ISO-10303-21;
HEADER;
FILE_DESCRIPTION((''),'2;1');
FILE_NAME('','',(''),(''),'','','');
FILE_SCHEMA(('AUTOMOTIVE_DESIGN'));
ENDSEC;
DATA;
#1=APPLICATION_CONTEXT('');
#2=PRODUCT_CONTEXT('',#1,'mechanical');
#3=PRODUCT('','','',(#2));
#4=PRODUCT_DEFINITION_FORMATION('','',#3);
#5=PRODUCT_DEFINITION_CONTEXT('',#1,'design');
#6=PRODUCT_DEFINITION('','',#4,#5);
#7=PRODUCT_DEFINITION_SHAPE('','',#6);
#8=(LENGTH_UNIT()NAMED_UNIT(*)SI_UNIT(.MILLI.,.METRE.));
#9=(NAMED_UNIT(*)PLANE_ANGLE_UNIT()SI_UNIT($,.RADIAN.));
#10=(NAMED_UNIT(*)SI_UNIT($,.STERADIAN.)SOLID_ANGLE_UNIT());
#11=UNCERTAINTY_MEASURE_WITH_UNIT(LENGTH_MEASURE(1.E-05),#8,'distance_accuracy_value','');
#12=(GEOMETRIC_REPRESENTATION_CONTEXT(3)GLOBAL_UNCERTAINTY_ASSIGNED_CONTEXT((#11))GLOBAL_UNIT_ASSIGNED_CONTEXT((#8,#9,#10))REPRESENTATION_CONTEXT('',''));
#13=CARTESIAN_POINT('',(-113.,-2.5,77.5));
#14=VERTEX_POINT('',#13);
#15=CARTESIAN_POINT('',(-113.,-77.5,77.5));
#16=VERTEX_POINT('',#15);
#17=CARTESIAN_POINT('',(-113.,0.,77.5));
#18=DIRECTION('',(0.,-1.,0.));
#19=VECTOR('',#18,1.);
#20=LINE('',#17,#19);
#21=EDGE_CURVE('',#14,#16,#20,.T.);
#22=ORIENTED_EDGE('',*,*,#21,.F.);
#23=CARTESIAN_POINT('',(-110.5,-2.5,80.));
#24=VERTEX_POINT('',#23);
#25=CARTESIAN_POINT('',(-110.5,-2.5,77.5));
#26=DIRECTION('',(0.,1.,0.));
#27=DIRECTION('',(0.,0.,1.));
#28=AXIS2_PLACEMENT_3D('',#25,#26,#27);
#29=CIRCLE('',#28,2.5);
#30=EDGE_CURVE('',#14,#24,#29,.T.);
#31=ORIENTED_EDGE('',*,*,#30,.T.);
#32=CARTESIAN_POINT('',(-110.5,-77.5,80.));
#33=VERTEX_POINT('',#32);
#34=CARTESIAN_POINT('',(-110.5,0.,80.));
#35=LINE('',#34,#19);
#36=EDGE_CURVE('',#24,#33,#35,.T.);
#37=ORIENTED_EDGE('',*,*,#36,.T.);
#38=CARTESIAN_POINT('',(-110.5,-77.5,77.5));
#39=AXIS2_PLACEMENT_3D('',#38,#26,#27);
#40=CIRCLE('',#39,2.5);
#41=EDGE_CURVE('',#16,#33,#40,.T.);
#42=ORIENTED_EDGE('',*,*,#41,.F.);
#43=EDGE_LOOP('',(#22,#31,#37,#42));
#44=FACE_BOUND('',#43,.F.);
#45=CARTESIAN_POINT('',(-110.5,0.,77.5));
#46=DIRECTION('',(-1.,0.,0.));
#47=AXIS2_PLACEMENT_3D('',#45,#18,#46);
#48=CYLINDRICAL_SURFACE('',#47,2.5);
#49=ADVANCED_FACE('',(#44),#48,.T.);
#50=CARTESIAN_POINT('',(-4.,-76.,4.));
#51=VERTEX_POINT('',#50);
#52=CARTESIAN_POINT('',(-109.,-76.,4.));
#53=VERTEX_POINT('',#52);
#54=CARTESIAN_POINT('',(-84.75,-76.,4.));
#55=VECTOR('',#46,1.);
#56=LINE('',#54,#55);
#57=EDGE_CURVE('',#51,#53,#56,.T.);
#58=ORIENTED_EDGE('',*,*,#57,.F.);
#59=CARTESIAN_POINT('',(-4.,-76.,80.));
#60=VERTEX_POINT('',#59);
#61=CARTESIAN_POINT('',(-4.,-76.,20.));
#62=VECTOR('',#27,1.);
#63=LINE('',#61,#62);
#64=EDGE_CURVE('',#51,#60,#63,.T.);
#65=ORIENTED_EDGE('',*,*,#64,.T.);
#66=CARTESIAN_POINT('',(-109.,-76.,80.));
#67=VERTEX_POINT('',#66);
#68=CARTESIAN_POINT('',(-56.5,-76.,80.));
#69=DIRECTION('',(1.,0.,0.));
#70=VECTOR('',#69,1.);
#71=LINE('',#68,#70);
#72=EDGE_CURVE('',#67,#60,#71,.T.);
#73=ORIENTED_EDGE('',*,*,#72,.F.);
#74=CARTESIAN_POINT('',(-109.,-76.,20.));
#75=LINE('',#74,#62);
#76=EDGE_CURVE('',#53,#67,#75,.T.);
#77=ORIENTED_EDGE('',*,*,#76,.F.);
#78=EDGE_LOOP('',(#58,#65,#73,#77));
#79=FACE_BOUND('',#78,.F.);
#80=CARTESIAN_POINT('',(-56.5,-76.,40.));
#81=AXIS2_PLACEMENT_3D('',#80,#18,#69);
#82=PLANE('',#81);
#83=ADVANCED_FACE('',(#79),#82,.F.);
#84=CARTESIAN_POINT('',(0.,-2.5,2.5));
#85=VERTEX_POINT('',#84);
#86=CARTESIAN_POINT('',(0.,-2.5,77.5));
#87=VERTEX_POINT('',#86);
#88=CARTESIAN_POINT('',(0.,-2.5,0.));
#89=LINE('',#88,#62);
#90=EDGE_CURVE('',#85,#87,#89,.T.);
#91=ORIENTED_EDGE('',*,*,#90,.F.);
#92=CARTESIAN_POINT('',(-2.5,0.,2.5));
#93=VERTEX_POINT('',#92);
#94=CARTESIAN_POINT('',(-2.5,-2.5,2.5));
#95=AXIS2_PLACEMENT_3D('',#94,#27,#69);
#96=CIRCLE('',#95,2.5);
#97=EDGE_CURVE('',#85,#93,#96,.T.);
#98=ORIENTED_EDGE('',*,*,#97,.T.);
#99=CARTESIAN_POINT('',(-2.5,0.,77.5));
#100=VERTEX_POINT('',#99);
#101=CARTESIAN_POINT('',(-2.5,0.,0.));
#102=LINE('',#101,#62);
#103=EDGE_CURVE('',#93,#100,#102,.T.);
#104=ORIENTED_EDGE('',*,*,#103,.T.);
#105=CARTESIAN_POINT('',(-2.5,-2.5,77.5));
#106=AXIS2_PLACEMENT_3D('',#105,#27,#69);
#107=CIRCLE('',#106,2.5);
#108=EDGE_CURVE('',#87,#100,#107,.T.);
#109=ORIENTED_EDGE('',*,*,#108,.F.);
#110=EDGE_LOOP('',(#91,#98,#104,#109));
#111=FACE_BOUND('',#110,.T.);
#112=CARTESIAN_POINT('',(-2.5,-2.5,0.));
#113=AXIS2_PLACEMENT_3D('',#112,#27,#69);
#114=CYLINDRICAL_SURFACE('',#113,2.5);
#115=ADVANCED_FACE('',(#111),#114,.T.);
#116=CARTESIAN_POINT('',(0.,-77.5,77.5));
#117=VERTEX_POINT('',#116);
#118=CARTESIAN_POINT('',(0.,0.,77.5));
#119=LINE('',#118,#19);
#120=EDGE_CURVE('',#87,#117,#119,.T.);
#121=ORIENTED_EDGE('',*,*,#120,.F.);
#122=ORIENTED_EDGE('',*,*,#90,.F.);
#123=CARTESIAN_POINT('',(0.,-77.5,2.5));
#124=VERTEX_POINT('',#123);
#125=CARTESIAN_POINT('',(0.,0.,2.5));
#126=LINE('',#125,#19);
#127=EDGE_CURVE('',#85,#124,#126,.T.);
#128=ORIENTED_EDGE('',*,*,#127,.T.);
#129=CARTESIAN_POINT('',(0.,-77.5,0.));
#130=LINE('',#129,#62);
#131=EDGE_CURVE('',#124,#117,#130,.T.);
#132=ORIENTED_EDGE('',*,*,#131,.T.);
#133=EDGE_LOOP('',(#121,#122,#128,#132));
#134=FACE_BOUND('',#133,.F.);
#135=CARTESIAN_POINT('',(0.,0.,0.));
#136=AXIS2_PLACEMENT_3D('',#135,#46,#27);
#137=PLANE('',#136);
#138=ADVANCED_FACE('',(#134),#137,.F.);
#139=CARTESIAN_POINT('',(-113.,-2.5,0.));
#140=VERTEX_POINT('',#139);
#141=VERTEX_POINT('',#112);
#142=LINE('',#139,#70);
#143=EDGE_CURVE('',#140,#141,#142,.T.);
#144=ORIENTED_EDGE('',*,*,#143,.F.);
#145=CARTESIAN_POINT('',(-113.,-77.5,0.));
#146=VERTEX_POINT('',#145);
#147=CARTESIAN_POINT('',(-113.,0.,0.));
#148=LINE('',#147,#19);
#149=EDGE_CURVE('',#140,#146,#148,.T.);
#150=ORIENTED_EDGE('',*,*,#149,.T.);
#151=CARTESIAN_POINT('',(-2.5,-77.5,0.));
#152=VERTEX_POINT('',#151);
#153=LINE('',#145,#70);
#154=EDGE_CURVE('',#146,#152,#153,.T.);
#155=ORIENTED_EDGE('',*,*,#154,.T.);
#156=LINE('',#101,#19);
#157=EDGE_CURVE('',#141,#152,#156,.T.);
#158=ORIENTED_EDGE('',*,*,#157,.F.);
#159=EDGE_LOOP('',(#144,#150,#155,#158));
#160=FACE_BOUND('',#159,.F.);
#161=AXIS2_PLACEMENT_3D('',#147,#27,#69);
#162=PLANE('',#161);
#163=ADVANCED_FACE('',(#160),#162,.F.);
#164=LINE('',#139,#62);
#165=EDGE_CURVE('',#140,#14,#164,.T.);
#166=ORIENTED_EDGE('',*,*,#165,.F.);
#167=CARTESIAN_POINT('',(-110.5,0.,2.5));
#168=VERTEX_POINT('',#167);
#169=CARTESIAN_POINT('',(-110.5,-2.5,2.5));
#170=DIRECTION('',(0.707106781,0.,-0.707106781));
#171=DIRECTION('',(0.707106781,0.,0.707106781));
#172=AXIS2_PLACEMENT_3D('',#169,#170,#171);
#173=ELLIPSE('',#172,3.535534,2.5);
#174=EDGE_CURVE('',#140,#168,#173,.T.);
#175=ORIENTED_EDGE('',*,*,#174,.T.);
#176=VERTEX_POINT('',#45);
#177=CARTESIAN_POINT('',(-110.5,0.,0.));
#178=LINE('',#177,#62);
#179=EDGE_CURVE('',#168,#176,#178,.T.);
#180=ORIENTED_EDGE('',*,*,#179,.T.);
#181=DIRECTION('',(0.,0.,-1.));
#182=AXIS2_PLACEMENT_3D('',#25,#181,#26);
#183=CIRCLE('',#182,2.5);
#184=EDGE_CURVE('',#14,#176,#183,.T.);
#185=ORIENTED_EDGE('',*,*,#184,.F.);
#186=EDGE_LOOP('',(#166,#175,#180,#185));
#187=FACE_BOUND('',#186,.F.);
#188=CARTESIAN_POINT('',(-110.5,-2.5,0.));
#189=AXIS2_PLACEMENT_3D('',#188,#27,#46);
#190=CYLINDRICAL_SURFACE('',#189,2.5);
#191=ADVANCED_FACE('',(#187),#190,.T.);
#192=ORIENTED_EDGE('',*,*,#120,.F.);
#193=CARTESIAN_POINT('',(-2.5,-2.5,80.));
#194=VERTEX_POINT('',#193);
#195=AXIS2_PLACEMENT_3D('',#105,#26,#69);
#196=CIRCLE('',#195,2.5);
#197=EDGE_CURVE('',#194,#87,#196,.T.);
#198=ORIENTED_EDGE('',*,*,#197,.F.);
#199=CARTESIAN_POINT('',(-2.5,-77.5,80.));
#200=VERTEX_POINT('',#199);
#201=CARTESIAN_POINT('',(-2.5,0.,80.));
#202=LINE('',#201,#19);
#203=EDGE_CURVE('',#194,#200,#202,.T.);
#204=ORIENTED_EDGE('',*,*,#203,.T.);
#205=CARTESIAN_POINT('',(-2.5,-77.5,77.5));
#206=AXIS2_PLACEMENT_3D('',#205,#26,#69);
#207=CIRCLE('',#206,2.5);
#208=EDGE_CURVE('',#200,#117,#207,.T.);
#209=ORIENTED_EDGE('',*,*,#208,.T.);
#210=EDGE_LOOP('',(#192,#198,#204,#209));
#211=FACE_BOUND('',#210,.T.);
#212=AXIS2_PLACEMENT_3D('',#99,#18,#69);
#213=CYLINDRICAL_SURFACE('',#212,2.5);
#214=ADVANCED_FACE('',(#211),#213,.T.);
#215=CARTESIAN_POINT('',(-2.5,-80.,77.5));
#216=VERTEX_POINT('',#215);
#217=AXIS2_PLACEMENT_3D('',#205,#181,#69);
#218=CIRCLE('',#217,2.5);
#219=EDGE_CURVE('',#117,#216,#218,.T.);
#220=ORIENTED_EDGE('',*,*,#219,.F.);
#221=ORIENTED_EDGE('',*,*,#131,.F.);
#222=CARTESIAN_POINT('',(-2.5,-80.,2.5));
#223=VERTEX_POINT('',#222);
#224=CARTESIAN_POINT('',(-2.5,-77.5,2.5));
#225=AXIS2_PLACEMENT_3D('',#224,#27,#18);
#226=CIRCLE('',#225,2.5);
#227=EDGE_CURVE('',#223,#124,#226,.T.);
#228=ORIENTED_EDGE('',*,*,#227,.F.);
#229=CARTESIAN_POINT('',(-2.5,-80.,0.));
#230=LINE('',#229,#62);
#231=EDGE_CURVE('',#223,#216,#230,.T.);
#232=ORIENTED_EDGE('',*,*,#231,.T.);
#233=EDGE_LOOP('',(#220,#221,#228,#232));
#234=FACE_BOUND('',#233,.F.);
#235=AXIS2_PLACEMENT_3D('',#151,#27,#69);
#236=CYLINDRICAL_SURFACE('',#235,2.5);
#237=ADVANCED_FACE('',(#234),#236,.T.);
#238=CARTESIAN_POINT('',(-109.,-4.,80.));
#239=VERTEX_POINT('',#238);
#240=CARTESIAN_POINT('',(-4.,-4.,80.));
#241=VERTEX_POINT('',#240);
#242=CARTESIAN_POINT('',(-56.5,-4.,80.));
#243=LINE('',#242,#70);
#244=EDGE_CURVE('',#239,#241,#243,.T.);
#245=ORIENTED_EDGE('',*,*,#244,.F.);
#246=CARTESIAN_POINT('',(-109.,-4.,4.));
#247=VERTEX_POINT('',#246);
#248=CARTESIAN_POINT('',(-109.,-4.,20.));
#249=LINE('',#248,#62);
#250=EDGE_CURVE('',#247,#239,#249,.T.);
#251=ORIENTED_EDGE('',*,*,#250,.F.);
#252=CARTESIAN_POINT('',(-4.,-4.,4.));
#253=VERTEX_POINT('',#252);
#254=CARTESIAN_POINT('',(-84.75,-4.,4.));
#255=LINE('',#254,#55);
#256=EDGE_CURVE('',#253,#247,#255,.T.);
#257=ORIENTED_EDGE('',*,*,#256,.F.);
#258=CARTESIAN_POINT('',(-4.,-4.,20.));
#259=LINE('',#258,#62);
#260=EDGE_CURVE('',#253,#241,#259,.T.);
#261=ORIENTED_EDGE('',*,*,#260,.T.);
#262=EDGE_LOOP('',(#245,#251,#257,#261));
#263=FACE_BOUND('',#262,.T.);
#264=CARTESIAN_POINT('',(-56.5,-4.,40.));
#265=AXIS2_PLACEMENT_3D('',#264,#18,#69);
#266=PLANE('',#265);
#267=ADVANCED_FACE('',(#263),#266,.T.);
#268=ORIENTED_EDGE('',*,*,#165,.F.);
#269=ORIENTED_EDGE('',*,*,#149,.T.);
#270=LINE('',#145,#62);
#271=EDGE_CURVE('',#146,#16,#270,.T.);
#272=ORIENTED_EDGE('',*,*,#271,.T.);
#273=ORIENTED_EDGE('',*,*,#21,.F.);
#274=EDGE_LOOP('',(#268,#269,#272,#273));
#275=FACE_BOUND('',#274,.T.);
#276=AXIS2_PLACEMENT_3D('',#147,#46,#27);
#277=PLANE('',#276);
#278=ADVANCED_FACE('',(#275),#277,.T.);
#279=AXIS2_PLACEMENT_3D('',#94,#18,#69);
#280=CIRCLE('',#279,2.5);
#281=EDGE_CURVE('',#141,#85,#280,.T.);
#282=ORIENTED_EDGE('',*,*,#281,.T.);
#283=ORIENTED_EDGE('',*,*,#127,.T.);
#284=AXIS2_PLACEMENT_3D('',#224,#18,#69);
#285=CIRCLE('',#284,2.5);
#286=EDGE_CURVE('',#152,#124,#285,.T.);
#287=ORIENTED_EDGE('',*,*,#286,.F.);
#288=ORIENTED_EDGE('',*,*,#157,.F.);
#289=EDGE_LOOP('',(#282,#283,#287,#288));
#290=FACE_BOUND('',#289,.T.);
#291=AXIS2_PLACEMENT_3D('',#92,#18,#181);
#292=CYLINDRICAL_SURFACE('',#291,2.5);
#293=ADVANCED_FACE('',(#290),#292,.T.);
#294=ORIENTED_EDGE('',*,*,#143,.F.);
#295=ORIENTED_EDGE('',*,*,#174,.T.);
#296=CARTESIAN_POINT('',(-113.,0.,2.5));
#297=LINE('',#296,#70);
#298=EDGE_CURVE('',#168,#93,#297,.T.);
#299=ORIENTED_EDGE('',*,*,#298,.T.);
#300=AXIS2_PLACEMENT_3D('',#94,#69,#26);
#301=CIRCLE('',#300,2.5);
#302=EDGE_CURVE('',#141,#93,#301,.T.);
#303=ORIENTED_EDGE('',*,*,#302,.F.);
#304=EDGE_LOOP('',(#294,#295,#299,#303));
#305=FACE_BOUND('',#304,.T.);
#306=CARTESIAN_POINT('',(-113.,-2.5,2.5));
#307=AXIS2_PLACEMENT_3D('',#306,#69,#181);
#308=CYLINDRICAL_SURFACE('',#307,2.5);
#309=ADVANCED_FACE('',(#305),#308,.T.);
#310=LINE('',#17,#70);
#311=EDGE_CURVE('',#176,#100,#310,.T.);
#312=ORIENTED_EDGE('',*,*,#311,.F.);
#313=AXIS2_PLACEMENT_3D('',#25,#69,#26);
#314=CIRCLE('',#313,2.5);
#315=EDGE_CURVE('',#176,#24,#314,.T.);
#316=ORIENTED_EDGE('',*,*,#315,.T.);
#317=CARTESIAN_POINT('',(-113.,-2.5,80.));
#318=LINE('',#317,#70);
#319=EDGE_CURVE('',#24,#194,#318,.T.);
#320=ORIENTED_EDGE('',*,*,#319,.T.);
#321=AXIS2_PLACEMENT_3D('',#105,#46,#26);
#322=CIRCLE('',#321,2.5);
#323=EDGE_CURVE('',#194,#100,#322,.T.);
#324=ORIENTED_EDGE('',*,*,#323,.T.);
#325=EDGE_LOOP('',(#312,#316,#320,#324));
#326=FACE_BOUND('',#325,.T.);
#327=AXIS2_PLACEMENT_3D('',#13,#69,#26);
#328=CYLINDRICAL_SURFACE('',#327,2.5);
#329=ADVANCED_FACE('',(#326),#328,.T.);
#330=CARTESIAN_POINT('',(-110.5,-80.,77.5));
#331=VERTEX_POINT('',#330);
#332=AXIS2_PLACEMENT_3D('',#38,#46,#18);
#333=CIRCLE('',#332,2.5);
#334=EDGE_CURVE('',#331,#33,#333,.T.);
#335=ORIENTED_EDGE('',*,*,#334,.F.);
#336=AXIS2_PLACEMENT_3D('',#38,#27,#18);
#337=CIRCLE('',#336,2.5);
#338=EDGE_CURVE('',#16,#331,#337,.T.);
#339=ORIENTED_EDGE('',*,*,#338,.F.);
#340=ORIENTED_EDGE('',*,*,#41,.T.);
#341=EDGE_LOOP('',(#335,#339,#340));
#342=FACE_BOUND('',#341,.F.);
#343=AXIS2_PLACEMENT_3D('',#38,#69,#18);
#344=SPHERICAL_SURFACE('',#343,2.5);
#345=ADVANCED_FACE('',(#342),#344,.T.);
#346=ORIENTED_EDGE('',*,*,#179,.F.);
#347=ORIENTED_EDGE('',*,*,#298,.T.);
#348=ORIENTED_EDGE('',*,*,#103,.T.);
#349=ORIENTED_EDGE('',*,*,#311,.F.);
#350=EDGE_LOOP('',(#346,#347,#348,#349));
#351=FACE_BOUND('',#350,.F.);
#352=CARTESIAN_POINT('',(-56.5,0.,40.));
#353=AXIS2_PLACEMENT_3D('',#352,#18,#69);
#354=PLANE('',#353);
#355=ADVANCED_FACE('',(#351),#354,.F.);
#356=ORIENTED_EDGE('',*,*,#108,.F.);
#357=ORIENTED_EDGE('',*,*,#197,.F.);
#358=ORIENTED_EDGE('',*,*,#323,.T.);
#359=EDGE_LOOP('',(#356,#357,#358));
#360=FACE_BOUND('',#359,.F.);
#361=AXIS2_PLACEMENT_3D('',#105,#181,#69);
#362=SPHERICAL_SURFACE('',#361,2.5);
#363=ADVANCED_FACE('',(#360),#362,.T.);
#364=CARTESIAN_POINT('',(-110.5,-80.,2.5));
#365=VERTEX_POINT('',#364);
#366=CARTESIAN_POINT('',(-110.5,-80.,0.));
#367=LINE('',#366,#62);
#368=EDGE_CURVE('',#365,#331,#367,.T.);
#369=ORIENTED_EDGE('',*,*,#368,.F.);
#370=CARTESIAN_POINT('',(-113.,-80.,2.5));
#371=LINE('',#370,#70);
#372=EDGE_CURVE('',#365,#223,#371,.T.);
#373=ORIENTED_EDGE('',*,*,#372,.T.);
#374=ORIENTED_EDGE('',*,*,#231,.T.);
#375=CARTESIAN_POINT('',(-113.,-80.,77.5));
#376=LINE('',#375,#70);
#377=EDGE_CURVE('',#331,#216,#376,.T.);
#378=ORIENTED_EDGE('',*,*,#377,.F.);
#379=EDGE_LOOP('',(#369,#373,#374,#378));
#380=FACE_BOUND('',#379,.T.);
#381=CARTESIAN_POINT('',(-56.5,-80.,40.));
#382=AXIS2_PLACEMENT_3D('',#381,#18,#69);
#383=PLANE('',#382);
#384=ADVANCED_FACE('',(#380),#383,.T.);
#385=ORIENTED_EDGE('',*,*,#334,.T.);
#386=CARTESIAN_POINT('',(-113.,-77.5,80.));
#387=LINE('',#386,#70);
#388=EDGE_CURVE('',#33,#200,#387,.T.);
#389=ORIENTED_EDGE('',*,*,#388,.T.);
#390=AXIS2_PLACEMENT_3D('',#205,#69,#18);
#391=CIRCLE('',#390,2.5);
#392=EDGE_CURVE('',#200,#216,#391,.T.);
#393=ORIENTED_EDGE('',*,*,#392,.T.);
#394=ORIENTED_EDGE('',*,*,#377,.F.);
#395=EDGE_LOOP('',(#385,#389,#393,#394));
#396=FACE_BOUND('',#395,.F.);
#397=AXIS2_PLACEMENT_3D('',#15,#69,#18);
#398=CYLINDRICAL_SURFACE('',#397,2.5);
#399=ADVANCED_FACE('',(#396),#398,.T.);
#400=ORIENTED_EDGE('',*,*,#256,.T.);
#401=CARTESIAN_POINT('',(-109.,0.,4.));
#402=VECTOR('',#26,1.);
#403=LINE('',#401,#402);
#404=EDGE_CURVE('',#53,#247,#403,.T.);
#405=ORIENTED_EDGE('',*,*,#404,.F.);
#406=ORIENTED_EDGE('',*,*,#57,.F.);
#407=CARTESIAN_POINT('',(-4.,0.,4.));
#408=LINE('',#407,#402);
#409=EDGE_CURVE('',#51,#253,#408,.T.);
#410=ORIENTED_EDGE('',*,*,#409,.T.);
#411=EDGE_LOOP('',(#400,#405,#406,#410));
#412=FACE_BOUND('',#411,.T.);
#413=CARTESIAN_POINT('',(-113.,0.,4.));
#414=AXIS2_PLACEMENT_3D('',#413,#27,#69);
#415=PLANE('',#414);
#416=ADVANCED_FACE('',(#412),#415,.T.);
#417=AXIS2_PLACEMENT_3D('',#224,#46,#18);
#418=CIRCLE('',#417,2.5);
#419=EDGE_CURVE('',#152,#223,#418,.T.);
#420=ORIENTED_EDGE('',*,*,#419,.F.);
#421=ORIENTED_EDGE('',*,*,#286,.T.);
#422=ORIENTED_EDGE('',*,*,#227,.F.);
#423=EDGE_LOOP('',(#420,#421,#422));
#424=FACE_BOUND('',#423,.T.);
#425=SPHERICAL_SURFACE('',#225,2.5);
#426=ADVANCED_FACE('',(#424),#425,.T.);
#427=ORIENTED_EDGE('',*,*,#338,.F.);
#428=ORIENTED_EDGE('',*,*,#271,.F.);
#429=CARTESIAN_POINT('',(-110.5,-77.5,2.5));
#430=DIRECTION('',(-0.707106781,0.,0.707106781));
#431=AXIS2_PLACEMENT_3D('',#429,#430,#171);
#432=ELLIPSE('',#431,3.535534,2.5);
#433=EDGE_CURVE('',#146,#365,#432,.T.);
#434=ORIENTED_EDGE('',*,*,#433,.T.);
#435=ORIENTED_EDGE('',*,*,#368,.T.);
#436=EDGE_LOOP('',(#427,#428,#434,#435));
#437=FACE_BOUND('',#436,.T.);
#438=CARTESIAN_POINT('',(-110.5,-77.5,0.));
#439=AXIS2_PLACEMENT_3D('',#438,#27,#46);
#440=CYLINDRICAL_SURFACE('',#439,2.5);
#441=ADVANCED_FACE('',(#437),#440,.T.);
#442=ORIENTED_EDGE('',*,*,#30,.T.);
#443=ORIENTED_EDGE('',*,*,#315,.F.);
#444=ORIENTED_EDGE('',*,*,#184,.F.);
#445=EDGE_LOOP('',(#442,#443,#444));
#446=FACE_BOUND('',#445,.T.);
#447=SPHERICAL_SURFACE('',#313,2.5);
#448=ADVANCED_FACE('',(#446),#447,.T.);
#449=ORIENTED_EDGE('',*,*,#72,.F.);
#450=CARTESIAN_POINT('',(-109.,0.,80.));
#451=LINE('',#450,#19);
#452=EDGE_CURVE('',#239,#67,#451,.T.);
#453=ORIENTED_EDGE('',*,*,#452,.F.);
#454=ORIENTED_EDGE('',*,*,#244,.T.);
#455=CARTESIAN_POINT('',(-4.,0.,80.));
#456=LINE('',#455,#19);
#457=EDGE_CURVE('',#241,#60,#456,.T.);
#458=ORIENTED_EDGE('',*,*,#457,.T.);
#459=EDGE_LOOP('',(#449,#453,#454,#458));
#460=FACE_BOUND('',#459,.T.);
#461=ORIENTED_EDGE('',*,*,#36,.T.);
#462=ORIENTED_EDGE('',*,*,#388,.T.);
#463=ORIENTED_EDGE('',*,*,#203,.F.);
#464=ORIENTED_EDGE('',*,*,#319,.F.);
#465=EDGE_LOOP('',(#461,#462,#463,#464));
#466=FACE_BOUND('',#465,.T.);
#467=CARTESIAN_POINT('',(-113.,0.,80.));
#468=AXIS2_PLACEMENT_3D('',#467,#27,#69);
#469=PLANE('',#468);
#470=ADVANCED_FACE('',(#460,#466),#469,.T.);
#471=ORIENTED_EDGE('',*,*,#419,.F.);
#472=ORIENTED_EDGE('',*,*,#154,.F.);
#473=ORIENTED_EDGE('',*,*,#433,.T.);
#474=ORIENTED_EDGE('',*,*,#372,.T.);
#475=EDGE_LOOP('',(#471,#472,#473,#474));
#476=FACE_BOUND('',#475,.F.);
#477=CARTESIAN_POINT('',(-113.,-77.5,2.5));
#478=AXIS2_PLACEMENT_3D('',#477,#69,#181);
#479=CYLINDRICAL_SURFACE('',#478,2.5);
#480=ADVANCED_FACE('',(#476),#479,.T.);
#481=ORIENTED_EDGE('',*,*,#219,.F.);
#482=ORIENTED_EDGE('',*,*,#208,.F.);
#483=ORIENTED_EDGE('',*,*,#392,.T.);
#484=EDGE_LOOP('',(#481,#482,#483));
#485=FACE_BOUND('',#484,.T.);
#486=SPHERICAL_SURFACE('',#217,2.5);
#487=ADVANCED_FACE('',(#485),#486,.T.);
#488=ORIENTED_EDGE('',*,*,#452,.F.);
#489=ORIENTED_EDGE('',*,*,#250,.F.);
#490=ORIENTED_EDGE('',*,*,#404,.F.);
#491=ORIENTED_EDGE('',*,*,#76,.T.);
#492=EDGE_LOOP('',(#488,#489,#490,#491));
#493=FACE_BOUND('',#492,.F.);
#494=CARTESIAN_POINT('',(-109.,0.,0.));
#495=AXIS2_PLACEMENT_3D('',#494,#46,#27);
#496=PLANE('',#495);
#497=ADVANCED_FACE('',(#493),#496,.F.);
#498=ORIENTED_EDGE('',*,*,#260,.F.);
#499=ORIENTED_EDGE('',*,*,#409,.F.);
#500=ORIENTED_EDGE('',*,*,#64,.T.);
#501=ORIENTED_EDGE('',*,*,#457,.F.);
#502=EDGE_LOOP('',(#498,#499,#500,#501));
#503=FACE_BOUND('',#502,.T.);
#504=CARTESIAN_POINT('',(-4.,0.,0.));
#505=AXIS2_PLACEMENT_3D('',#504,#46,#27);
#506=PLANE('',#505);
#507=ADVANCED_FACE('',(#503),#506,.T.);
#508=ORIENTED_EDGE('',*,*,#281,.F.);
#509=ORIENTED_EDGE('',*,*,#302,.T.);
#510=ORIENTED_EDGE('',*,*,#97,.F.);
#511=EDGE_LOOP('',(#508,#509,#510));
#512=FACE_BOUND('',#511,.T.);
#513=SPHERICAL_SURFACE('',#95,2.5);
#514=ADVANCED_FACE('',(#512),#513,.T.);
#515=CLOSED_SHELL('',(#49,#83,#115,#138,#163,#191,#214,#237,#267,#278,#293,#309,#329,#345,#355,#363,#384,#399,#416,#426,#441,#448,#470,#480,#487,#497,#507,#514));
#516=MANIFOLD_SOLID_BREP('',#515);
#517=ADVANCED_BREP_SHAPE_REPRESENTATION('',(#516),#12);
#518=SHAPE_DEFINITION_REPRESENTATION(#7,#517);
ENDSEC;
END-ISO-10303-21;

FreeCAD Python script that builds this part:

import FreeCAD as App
import Part
import Sketcher
Q = App.Units.Quantity


def edges_at(feature, points):
    """Names of the edges that pass closest to the given points."""
    edges = feature.Shape.Edges
    near = lambda p: min(range(len(edges)), key=lambda i: edges[i].distToShape(Part.Vertex(*p))[0])
    return sorted({f"Edge{near(p) + 1}" for p in points})


def faces_at(feature, points):
    """Names of the faces that lie closest to the given points."""
    faces = feature.Shape.Faces
    near = lambda p: min(range(len(faces)), key=lambda i: faces[i].distToShape(Part.Vertex(*p))[0])
    return sorted({f"Face{near(p) + 1}" for p in points})


def add_polygon(sketch, points):
    """Adds a closed chain of lines whose ends are joined by coincident constraints."""
    first, n = sketch.GeometryCount, len(points)
    for a, b in zip(points, points[1:] + points[:1]):
        sketch.addGeometry(Part.LineSegment(App.Vector(*a, 0), App.Vector(*b, 0)), False)
    for i in range(n):
        sketch.addConstraint(Sketcher.Constraint("Coincident", first + i, 2, first + (i + 1) % n, 1))

doc = App.newDocument("Part")
body = doc.addObject("PartDesign::Body", "Body")

# Sketch on XZ plane
sketch1 = doc.addObject("Sketcher::SketchObject", "Sketch")
body.addObject(sketch1)
sketch1.AttachmentSupport = (doc.XZ_Plane, [""])
sketch1.MapMode = "FlatFace"
add_polygon(sketch1, [(-113, 80), (-113, 0), (0, 0), (0, 80)])  # lines 0-3
sketch1.addConstraint([
    Sketcher.Constraint("Vertical", 0),
    Sketcher.Constraint("Horizontal", 1),
    Sketcher.Constraint("Vertical", 2),
    Sketcher.Constraint("Horizontal", 3),
    Sketcher.Constraint("Coincident", 1, 2, -1, 1),
    Sketcher.Constraint("DistanceX", 1, 1, 1, 2, Q("113 mm")),
    Sketcher.Constraint("DistanceY", 0, 2, 0, 1, Q("80 mm")),
])
pad1 = doc.addObject("PartDesign::Pad", "Pad")
body.addObject(pad1)
pad1.Profile = sketch1
pad1.Length = 80
doc.recompute()

thickness = doc.addObject("PartDesign::Thickness", "Thickness")
body.addObject(thickness)
thickness.Base = (pad1, faces_at(pad1, [(-56.5, -40, 80)]))
thickness.Value = 4
thickness.Reversed = True
thickness.Join = "Arc"
doc.recompute()

fillet = doc.addObject("PartDesign::Fillet", "Fillet")
body.addObject(fillet)
fillet.Base = (thickness, edges_at(thickness, [
    (0, -80, 40),
    (0, 0, 40),
    (0, -40, 80),
    (-56.5, -80, 80),
    (-56.5, 0, 80),
    (-56.5, -80, 0),
    (0, -40, 0),
    (-56.5, 0, 0),
    (-113, -80, 40),
    (-113, 0, 40),
    (-113, -40, 80),
]))
fillet.Radius = 2.5

doc.recompute()
